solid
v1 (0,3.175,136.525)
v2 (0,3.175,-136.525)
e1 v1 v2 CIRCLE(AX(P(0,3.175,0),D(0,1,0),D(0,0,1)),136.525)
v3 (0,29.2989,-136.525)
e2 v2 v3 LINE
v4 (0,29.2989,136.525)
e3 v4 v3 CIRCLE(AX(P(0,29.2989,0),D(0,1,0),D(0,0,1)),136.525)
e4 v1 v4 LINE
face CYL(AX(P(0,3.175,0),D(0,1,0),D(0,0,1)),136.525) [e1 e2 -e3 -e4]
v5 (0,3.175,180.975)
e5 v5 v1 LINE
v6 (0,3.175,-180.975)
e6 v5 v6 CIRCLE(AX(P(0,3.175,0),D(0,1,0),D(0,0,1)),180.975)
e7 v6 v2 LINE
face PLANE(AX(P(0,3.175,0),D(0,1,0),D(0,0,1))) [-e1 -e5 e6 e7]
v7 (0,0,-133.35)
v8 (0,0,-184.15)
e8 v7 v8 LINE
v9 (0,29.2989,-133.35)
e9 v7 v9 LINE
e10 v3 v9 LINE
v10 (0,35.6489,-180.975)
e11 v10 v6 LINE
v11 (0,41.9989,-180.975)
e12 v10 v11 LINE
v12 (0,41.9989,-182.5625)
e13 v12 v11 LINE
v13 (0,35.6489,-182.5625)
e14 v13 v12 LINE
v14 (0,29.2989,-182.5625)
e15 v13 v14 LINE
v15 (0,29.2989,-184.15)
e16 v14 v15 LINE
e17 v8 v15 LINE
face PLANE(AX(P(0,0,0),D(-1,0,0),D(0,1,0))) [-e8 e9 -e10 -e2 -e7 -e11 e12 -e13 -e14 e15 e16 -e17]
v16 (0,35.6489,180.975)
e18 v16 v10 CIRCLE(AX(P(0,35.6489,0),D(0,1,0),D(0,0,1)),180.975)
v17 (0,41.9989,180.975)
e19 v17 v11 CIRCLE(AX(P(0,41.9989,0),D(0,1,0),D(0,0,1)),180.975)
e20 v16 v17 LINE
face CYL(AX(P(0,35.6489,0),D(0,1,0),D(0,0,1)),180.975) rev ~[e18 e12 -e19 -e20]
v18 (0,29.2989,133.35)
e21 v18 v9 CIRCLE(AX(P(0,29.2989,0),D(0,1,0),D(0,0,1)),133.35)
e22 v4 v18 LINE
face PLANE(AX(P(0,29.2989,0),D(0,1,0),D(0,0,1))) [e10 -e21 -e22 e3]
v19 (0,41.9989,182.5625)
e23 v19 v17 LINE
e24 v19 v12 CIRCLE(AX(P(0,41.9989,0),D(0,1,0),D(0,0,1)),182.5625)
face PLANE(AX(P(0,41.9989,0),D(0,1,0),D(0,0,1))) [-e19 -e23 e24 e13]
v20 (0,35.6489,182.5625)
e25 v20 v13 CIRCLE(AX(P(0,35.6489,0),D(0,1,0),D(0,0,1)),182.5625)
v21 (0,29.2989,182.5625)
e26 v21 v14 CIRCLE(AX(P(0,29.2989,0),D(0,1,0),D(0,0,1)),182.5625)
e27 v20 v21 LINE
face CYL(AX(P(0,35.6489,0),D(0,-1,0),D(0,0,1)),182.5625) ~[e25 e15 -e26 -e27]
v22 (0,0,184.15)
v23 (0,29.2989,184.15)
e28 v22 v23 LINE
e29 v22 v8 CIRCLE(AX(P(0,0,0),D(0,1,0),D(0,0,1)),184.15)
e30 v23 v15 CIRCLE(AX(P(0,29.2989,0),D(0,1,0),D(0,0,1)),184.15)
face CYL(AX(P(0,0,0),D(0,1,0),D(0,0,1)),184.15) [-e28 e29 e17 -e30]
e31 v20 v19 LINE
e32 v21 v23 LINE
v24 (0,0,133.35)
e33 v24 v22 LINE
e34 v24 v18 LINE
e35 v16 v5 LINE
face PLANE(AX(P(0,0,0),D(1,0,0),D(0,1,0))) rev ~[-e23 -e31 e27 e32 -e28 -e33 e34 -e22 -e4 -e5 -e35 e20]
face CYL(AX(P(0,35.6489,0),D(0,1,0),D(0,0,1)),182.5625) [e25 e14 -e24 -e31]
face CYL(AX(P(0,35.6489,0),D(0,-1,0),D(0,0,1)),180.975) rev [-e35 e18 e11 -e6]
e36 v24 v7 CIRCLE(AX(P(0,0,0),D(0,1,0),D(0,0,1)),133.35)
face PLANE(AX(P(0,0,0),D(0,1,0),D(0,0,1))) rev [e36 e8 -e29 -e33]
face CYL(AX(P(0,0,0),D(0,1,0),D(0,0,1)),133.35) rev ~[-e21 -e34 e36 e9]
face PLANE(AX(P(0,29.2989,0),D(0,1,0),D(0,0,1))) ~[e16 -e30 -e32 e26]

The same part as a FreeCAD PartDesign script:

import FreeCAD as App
import Part
import Sketcher

V = App.Vector
Q = App.Units.Quantity

doc = App.newDocument("Part")
body = doc.addObject("PartDesign::Body", "Body")

# Sketch on YZ plane
sketch1 = doc.addObject("Sketcher::SketchObject", "Sketch")
body.addObject(sketch1)
sketch1.AttachmentSupport = (doc.YZ_Plane, [""])
sketch1.MapMode = "FlatFace"
sketch1.addGeometry([
    Part.LineSegment(V(0, 184.2, 0), V(0, 133.3, 0)),  # 0
    Part.LineSegment(V(0, 133.3, 0), V(29.3, 133.3, 0)),  # 1
    Part.LineSegment(V(29.3, 133.3, 0), V(29.3, 136.5, 0)),  # 2
    Part.LineSegment(V(29.3, 136.5, 0), V(3.2, 136.5, 0)),  # 3
    Part.LineSegment(V(3.2, 136.5, 0), V(3.2, 181, 0)),  # 4
    Part.LineSegment(V(3.2, 181, 0), V(42, 181, 0)),  # 5
    Part.LineSegment(V(42, 181, 0), V(42, 182.6, 0)),  # 6
    Part.LineSegment(V(42, 182.6, 0), V(29.3, 182.6, 0)),  # 7
    Part.LineSegment(V(29.3, 182.6, 0), V(29.3, 184.2, 0)),  # 8
    Part.LineSegment(V(29.3, 184.2, 0), V(0, 184.2, 0)),  # 9
], False)
sketch1.addConstraint([
    Sketcher.Constraint("Coincident", 0, 2, 1, 1),
    Sketcher.Constraint("Coincident", 1, 2, 2, 1),
    Sketcher.Constraint("Coincident", 2, 2, 3, 1),
    Sketcher.Constraint("Coincident", 3, 2, 4, 1),
    Sketcher.Constraint("Coincident", 4, 2, 5, 1),
    Sketcher.Constraint("Coincident", 5, 2, 6, 1),
    Sketcher.Constraint("Coincident", 6, 2, 7, 1),
    Sketcher.Constraint("Coincident", 7, 2, 8, 1),
    Sketcher.Constraint("Coincident", 8, 2, 9, 1),
    Sketcher.Constraint("Coincident", 9, 2, 0, 1),
    Sketcher.Constraint("Vertical", 0),
    Sketcher.Constraint("Horizontal", 1),
    Sketcher.Constraint("Vertical", 2),
    Sketcher.Constraint("Horizontal", 3),
    Sketcher.Constraint("Vertical", 4),
    Sketcher.Constraint("Horizontal", 5),
    Sketcher.Constraint("Vertical", 6),
    Sketcher.Constraint("Horizontal", 7),
    Sketcher.Constraint("Vertical", 8),
    Sketcher.Constraint("Horizontal", 9),
    Sketcher.Constraint("PointOnObject", 0, 2, -2),
    Sketcher.Constraint("Vertical", 2, 2, 7, 2),
    Sketcher.Constraint("Equal", 6, 8),
    Sketcher.Constraint("DistanceY", 0, 2, 0, 1, Q("2 in")),
    Sketcher.Constraint("DistanceX", 7, 2, 7, 1, Q("0.5 in")),
    Sketcher.Constraint("DistanceY", 2, 1, 2, 2, Q("0.125 in")),
    Sketcher.Constraint("DistanceY", -1, 1, 0, 2, Q("5.25 in")),
    Sketcher.Constraint("DistanceX", 3, 2, 3, 1, Q("1.0285 in")),
    Sketcher.Constraint("DistanceX", -1, 1, 3, 2, Q("0.125 in")),
    Sketcher.Constraint("DistanceY", 5, 2, 8, 2, Q("0.125 in")),
])
revolution = doc.addObject("PartDesign::Revolution", "Revolution")
body.addObject(revolution)
revolution.Profile = sketch1
revolution.ReferenceAxis = (sketch1, ["H_Axis"])
revolution.Angle = 180

doc.recompute()
